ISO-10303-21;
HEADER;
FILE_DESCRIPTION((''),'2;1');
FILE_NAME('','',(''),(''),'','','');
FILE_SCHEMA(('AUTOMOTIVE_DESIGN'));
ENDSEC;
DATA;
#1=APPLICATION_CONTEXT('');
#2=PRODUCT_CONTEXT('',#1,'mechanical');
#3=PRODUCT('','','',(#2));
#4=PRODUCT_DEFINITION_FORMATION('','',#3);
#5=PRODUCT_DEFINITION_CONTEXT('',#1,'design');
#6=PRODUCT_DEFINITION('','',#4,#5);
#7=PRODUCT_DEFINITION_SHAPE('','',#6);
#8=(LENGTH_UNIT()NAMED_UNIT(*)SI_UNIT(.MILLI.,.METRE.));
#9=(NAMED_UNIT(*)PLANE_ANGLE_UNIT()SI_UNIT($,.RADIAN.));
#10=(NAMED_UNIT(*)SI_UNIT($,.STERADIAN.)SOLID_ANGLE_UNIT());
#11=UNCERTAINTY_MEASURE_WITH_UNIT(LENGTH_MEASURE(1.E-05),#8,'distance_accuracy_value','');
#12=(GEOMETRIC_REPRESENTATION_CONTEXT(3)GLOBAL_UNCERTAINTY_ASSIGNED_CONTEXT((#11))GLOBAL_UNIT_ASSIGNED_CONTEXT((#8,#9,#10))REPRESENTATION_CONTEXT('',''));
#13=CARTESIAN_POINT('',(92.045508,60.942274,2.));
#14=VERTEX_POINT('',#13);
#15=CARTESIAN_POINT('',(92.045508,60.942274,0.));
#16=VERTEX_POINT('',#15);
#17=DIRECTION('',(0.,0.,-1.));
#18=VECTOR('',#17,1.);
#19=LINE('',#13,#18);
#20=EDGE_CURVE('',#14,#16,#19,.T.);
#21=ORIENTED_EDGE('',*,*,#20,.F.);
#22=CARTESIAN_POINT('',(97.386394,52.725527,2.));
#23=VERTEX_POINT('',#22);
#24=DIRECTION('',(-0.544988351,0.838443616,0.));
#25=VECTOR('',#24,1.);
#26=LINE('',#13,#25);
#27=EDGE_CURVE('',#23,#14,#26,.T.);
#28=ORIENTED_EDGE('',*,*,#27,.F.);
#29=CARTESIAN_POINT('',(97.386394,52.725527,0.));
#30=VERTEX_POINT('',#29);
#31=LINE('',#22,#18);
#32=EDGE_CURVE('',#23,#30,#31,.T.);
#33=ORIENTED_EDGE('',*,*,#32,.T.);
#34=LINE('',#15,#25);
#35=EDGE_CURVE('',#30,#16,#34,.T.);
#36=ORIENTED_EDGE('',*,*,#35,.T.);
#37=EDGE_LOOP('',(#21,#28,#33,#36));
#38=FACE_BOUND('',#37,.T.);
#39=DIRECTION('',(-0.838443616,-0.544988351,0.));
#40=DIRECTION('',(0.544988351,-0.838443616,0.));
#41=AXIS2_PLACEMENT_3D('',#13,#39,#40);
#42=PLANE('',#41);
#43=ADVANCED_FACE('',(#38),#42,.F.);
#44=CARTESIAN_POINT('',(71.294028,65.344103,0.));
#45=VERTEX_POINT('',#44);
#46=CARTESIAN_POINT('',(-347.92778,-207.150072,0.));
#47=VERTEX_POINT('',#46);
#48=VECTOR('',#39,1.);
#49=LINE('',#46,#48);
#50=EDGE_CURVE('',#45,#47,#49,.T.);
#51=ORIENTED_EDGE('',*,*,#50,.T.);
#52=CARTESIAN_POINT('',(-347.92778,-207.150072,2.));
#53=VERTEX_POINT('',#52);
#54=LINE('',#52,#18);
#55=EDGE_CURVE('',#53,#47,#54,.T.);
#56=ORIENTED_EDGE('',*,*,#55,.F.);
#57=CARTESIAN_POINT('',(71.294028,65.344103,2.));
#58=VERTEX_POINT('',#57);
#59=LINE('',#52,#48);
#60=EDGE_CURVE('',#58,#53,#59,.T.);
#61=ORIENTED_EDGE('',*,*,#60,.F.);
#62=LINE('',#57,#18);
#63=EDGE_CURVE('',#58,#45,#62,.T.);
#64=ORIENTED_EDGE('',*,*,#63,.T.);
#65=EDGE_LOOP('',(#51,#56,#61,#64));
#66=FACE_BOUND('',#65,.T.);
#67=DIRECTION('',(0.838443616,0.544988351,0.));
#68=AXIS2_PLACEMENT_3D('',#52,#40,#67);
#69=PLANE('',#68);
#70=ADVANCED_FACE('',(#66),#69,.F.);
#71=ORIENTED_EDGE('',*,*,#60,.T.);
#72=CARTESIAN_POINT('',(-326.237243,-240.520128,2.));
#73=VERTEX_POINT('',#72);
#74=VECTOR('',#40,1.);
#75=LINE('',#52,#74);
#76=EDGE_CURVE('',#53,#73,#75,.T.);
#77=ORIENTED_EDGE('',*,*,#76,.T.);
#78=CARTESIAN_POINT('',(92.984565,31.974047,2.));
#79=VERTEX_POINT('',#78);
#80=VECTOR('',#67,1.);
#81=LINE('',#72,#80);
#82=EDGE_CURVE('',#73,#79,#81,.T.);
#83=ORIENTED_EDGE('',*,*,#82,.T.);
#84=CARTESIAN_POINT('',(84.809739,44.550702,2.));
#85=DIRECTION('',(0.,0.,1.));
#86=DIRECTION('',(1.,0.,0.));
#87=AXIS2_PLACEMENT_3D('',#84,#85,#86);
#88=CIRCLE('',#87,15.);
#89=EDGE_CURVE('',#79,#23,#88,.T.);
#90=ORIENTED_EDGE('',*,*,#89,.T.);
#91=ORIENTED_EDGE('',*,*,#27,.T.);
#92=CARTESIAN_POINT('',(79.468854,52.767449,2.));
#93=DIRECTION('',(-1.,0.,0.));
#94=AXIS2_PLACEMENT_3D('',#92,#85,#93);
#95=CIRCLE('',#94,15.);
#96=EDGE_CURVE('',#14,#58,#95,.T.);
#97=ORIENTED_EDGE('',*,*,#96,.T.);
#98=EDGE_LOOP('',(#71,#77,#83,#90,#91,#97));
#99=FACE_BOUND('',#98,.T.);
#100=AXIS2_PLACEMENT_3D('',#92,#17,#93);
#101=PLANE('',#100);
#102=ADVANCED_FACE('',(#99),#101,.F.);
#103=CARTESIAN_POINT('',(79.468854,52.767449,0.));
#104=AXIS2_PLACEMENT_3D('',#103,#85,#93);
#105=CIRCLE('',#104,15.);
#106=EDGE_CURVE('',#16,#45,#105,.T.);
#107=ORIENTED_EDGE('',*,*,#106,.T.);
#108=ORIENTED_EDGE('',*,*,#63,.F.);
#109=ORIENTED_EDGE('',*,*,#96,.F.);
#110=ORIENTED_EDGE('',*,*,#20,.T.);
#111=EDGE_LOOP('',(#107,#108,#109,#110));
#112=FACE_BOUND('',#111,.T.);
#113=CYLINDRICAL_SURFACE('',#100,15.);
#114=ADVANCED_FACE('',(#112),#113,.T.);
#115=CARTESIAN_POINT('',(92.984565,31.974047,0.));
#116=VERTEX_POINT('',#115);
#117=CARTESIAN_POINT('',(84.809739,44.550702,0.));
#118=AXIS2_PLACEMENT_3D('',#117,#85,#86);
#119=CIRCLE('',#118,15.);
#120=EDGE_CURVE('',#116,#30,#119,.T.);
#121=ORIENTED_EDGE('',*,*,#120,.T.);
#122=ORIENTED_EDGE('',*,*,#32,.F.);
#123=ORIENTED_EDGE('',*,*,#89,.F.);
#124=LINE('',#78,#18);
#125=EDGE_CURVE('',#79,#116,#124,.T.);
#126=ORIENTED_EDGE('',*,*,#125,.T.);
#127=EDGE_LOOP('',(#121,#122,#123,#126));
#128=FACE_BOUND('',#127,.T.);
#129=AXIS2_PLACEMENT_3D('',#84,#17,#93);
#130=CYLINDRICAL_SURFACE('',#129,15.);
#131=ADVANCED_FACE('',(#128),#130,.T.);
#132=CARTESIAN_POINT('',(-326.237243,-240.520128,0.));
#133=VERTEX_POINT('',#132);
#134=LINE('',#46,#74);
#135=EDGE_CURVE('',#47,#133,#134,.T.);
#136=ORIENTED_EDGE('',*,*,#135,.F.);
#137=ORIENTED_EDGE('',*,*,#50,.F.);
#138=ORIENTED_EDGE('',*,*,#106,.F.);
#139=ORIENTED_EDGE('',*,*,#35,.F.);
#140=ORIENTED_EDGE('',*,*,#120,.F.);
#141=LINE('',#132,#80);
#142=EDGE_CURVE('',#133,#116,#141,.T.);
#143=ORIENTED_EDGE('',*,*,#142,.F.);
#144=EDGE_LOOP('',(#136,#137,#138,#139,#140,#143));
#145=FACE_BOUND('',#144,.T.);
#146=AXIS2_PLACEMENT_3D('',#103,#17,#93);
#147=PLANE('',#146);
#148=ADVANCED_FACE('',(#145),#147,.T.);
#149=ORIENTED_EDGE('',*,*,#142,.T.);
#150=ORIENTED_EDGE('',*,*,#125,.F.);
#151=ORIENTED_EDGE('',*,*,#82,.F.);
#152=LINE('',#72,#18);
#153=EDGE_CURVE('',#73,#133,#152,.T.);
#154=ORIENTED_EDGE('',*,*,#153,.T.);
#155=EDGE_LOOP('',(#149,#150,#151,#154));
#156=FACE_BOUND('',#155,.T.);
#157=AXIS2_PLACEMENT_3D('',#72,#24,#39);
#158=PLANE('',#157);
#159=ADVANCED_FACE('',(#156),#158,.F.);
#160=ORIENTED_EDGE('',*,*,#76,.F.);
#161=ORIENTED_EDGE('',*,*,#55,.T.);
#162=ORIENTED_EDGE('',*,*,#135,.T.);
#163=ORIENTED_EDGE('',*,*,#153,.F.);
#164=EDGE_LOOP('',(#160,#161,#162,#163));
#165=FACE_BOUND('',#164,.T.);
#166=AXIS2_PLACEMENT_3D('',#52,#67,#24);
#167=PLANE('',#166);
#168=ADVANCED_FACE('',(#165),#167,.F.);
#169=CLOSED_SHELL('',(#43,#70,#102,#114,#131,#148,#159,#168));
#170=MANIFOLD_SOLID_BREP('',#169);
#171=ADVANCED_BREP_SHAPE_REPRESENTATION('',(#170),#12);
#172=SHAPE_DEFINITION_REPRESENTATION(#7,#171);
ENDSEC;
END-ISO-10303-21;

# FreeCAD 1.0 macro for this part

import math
import FreeCAD as App
import Part
import Sketcher

doc = App.newDocument("Part")
params = doc.addObject("Spreadsheet::Sheet", "Params")
for row, (alias, value) in enumerate([
    ("sketch1_radius", "15 mm"),
    ("sketch1_length", "500 mm"),
    ("sketch1_length2", "39.8 mm"),
    ("pad1_length", "2 mm"),
], start=1):
    params.set(f"A{row}", alias)
    params.set(f"B{row}", "=" + value)
    params.setAlias(f"B{row}", alias)

body = doc.addObject("PartDesign::Body", "Body")

# Sketch on XY plane
sketch1 = body.newObject("Sketcher::SketchObject", "Sketch")
sketch1.AttachmentSupport = (doc.getObject("XY_Plane"), [""])
sketch1.MapMode = "FlatFace"
sketch1.addGeometry(Part.LineSegment(App.Vector(-347.92778, -207.150072, 0), App.Vector(-326.237243, -240.520128, 0)), False)
sketch1.addGeometry(Part.LineSegment(App.Vector(-326.237243, -240.520128, 0), App.Vector(92.984565, 31.974047, 0)), False)
sketch1.addGeometry(Part.ArcOfCircle(Part.Circle(App.Vector(84.809739, 44.550702, 0), App.Vector(0, 0, 1), 15), math.radians(-56.976132), math.radians(33.023868)), False)
sketch1.addGeometry(Part.LineSegment(App.Vector(97.386394, 52.725527, 0), App.Vector(92.045508, 60.942274, 0)), False)
sketch1.addGeometry(Part.ArcOfCircle(Part.Circle(App.Vector(79.468854, 52.767449, 0), App.Vector(0, 0, 1), 15), math.radians(33.023868), math.radians(123.023868)), False)
sketch1.addGeometry(Part.LineSegment(App.Vector(71.294028, 65.344103, 0), App.Vector(-347.92778, -207.150072, 0)), False)
sketch1.addConstraint(Sketcher.Constraint("Coincident", 0, 2, 1, 1))
sketch1.addConstraint(Sketcher.Constraint("Tangent", 1, 2, 2, 1))
sketch1.addConstraint(Sketcher.Constraint("Tangent", 2, 2, 3, 1))
sketch1.addConstraint(Sketcher.Constraint("Tangent", 3, 2, 4, 1))
sketch1.addConstraint(Sketcher.Constraint("Tangent", 4, 2, 5, 1))
sketch1.addConstraint(Sketcher.Constraint("Coincident", 5, 2, 0, 1))
sketch1.addConstraint(Sketcher.Constraint("Equal", 2, 4))
sketch1.addConstraint(Sketcher.Constraint("Perpendicular", 0, 1))
sketch1.addConstraint(Sketcher.Constraint("Perpendicular", 1, 3))
sketch1.addConstraint(Sketcher.Constraint("Perpendicular", 3, 5))
sketch1.addConstraint(Sketcher.Constraint("Radius", 2, 15.0))
sketch1.addConstraint(Sketcher.Constraint("Distance", 1, 500.0))
sketch1.addConstraint(Sketcher.Constraint("Distance", 0, 39.8))
sketch1.addConstraint(Sketcher.Constraint("DistanceY", -1, 1, 2, 3, 44.550702))
sketch1.addConstraint(Sketcher.Constraint("DistanceY", 1, 2, 4, 3, 20.793402))
sketch1.addConstraint(Sketcher.Constraint("DistanceX", -1, 1, 2, 3, 84.809739))
sketch1.setExpression("Constraints[10]", "Params.sketch1_radius")
sketch1.setExpression("Constraints[11]", "Params.sketch1_length")
sketch1.setExpression("Constraints[12]", "Params.sketch1_length2")
pad1 = body.newObject("PartDesign::Pad", "Pad")
pad1.Profile = sketch1
pad1.setExpression("Length", "Params.pad1_length")

doc.recompute()
